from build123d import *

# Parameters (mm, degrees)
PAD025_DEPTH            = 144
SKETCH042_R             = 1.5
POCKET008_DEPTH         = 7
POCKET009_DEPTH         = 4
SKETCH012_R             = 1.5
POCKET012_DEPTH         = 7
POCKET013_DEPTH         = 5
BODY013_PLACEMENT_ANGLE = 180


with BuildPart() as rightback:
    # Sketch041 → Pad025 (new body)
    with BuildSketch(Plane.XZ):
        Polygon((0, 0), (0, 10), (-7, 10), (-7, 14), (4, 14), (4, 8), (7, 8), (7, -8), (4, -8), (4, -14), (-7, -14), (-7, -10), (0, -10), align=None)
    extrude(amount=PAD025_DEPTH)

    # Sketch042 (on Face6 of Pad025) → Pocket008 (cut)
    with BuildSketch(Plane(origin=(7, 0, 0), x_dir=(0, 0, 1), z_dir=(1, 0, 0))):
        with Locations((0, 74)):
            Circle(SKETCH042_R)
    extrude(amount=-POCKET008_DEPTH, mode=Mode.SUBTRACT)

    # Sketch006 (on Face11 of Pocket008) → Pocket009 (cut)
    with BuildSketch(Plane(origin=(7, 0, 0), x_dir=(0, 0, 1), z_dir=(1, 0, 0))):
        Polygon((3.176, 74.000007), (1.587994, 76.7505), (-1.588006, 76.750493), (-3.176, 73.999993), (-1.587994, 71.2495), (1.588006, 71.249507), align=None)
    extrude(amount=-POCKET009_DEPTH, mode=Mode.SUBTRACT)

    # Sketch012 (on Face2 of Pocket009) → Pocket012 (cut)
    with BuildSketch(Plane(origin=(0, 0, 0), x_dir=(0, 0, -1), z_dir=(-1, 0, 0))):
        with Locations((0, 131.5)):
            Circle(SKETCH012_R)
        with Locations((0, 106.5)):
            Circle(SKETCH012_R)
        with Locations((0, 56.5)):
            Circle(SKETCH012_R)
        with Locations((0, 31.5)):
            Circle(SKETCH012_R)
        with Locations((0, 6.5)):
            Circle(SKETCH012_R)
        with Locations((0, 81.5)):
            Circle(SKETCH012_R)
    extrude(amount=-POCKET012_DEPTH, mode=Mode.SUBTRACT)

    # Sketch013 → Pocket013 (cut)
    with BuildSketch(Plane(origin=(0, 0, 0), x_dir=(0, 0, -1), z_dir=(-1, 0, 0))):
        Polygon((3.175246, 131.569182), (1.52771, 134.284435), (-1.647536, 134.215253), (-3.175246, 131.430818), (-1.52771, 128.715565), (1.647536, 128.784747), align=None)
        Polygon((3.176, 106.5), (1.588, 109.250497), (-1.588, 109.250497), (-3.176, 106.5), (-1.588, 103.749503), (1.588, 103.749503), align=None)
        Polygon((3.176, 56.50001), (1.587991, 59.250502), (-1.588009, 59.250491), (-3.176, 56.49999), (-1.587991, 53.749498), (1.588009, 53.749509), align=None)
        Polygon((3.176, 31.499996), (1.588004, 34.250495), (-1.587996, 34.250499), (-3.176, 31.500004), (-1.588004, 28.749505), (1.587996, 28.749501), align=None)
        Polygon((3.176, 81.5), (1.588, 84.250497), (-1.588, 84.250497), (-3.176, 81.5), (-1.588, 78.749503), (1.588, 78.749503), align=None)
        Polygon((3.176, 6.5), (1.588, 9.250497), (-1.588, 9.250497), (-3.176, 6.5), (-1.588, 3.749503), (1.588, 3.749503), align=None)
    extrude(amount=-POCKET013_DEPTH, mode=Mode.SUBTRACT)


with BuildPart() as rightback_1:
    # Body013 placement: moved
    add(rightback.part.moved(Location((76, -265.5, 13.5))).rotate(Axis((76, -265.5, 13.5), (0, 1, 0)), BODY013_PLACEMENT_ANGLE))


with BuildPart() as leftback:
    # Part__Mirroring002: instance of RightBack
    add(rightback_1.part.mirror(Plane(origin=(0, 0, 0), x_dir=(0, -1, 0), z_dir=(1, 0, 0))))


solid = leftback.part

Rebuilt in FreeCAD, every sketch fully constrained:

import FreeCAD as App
import Part
import Sketcher
Q = App.Units.Quantity


def add_polygon(sketch, points):
    """Adds a closed chain of lines whose ends are joined by coincident constraints."""
    first, n = sketch.GeometryCount, len(points)
    for a, b in zip(points, points[1:] + points[:1]):
        sketch.addGeometry(Part.LineSegment(App.Vector(*a, 0), App.Vector(*b, 0)), False)
    for i in range(n):
        sketch.addConstraint(Sketcher.Constraint("Coincident", first + i, 2, first + (i + 1) % n, 1))

doc = App.newDocument("Part")
body = doc.addObject("PartDesign::Body", "Body")

# Sketch on XZ plane
sketch1 = body.newObject("Sketcher::SketchObject", "Sketch")
sketch1.AttachmentSupport = (doc.getObject("XZ_Plane"), [""])
sketch1.MapMode = "FlatFace"
add_polygon(sketch1, [(0, 10), (0, -10), (-7, -10), (-7, -14), (4, -14), (4, -8), (7, -8), (7, 8), (4, 8), (4, 14), (-7, 14), (-7, 10)])  # lines 0-11
sketch1.addConstraint(Sketcher.Constraint("Vertical", 0))
sketch1.addConstraint(Sketcher.Constraint("Horizontal", 1))
sketch1.addConstraint(Sketcher.Constraint("Vertical", 2))
sketch1.addConstraint(Sketcher.Constraint("Horizontal", 3))
sketch1.addConstraint(Sketcher.Constraint("Vertical", 4))
sketch1.addConstraint(Sketcher.Constraint("Horizontal", 5))
sketch1.addConstraint(Sketcher.Constraint("Vertical", 6))
sketch1.addConstraint(Sketcher.Constraint("Horizontal", 7))
sketch1.addConstraint(Sketcher.Constraint("Vertical", 8))
sketch1.addConstraint(Sketcher.Constraint("Horizontal", 9))
sketch1.addConstraint(Sketcher.Constraint("Vertical", 10))
sketch1.addConstraint(Sketcher.Constraint("Horizontal", 11))
sketch1.addConstraint(Sketcher.Constraint("Symmetric", 0, 2, 11, 2, -1, 1))
sketch1.addConstraint(Sketcher.Constraint("Symmetric", 4, 2, 7, 2, -1))
sketch1.addConstraint(Sketcher.Constraint("Symmetric", 2, 2, 9, 2, -1))
sketch1.addConstraint(Sketcher.Constraint("DistanceX", 1, 2, 1, 1, 7.0))
sketch1.addConstraint(Sketcher.Constraint("DistanceX", 3, 1, 3, 2, 11.0))
sketch1.addConstraint(Sketcher.Constraint("DistanceX", 5, 1, 5, 2, 3.0))
sketch1.addConstraint(Sketcher.Constraint("DistanceY", 0, 2, 0, 1, 20.0))
sketch1.addConstraint(Sketcher.Constraint("DistanceY", 2, 2, 2, 1, 4.0))
sketch1.addConstraint(Sketcher.Constraint("DistanceY", 4, 1, 4, 2, 6.0))
pad1 = body.newObject("PartDesign::Pad", "Pad")
pad1.Profile = sketch1
pad1.Length = 144

# Sketch on YZ plane
sketch2 = body.newObject("Sketcher::SketchObject", "Sketch001")
sketch2.AttachmentSupport = (doc.getObject("YZ_Plane"), [""])
sketch2.MapMode = "FlatFace"
sketch2.AttachmentOffset = App.Placement(App.Vector(0, 0, 7), App.Rotation())
sketch2.addGeometry(Part.Circle(App.Vector(-74, 0, 0), App.Vector(0, 0, 1), 1.5), False)
sketch2.addConstraint(Sketcher.Constraint("PointOnObject", 0, 3, -1))
sketch2.addConstraint(Sketcher.Constraint("Diameter", 0, 3.0))
sketch2.addConstraint(Sketcher.Constraint("DistanceX", 0, 3, -1, 1, 74.0))
pocket1 = body.newObject("PartDesign::Pocket", "Pocket")
pocket1.Profile = sketch2
pocket1.Length = 7

# Sketch on YZ plane
sketch3 = body.newObject("Sketcher::SketchObject", "Sketch002")
sketch3.AttachmentSupport = (doc.getObject("YZ_Plane"), [""])
sketch3.MapMode = "FlatFace"
sketch3.AttachmentOffset = App.Placement(App.Vector(0, 0, 7), App.Rotation())
add_polygon(sketch3, [(-74.000007, 3.176), (-76.7505, 1.587994), (-76.750493, -1.588006), (-73.999993, -3.176), (-71.2495, -1.587994), (-71.249507, 1.588006)])  # lines 0-5
sketch3.addConstraint(Sketcher.Constraint("Parallel", 0, 3))
sketch3.addConstraint(Sketcher.Constraint("Parallel", 1, 4))
sketch3.addConstraint(Sketcher.Constraint("Parallel", 2, 5))
sketch3.addConstraint(Sketcher.Constraint("Equal", 0, 1))
sketch3.addConstraint(Sketcher.Constraint("Equal", 1, 2))
sketch3.addConstraint(Sketcher.Constraint("Equal", 2, 3))
sketch3.addConstraint(Sketcher.Constraint("Distance", 0, 3.176))
sketch3.addConstraint(Sketcher.Constraint("DistanceY", 2, 2, -1, 1, 3.176))
sketch3.addConstraint(Sketcher.Constraint("DistanceY", -1, 1, 5, 2, 3.176))
sketch3.addConstraint(Sketcher.Constraint("DistanceX", 0, 2, 3, 2, 5.501))
sketch3.addConstraint(Sketcher.Constraint("DistanceX", 0, 2, -1, 1, 76.7505))
sketch3.addConstraint(Sketcher.Constraint("DistanceX", 1, 2, 2, 2, 2.7505))
pocket2 = body.newObject("PartDesign::Pocket", "Pocket001")
pocket2.Profile = sketch3
pocket2.Length = 4

# Sketch on YZ plane
sketch4 = body.newObject("Sketcher::SketchObject", "Sketch003")
sketch4.AttachmentSupport = (doc.getObject("YZ_Plane"), [""])
sketch4.MapMode = "FlatFace"
sketch4.addGeometry(Part.Circle(App.Vector(-131.5, 0, 0), App.Vector(0, 0, 1), 1.5), False)
sketch4.addGeometry(Part.Circle(App.Vector(-106.5, 0, 0), App.Vector(0, 0, 1), 1.5), False)
sketch4.addGeometry(Part.Circle(App.Vector(-56.5, 0, 0), App.Vector(0, 0, 1), 1.5), False)
sketch4.addGeometry(Part.Circle(App.Vector(-31.5, 0, 0), App.Vector(0, 0, 1), 1.5), False)
sketch4.addGeometry(Part.Circle(App.Vector(-6.5, 0, 0), App.Vector(0, 0, 1), 1.5), False)
sketch4.addGeometry(Part.Circle(App.Vector(-81.5, 0, 0), App.Vector(0, 0, 1), 1.5), False)
sketch4.addConstraint(Sketcher.Constraint("Equal", 0, 1))
sketch4.addConstraint(Sketcher.Constraint("Equal", 1, 2))
sketch4.addConstraint(Sketcher.Constraint("Equal", 2, 3))
sketch4.addConstraint(Sketcher.Constraint("Equal", 3, 4))
sketch4.addConstraint(Sketcher.Constraint("Equal", 4, 5))
sketch4.addConstraint(Sketcher.Constraint("PointOnObject", 0, 3, -1))
sketch4.addConstraint(Sketcher.Constraint("PointOnObject", 1, 3, -1))
sketch4.addConstraint(Sketcher.Constraint("PointOnObject", 2, 3, -1))
sketch4.addConstraint(Sketcher.Constraint("PointOnObject", 3, 3, -1))
sketch4.addConstraint(Sketcher.Constraint("PointOnObject", 4, 3, -1))
sketch4.addConstraint(Sketcher.Constraint("PointOnObject", 5, 3, -1))
sketch4.addConstraint(Sketcher.Constraint("Diameter", 0, 3.0))
sketch4.addConstraint(Sketcher.Constraint("DistanceX", 0, 3, 1, 3, 25.0))
sketch4.addConstraint(Sketcher.Constraint("DistanceX", 1, 3, 2, 3, 50.0))
sketch4.addConstraint(Sketcher.Constraint("DistanceX", 2, 3, 3, 3, 25.0))
sketch4.addConstraint(Sketcher.Constraint("DistanceX", 3, 3, 4, 3, 25.0))
sketch4.addConstraint(Sketcher.Constraint("DistanceX", 1, 3, 5, 3, 25.0))
sketch4.addConstraint(Sketcher.Constraint("DistanceX", 0, 3, -1, 1, 131.5))
pocket3 = body.newObject("PartDesign::Pocket", "Pocket002")
pocket3.Profile = sketch4
pocket3.Length = 7
pocket3.Reversed = True

# Sketch on YZ plane
sketch5 = body.newObject("Sketcher::SketchObject", "Sketch004")
sketch5.AttachmentSupport = (doc.getObject("YZ_Plane"), [""])
sketch5.MapMode = "FlatFace"
add_polygon(sketch5, [(-131.569182, -3.175246), (-134.284435, -1.52771), (-134.215253, 1.647536), (-131.430818, 3.175246), (-128.715565, 1.52771), (-128.784747, -1.647536)])  # lines 0-5
add_polygon(sketch5, [(-106.5, -3.176), (-109.250497, -1.588), (-109.250497, 1.588), (-106.5, 3.176), (-103.749503, 1.588), (-103.749503, -1.588)])  # lines 6-11
add_polygon(sketch5, [(-56.50001, -3.176), (-59.250502, -1.587991), (-59.250491, 1.588009), (-56.49999, 3.176), (-53.749498, 1.587991), (-53.749509, -1.588009)])  # lines 12-17
add_polygon(sketch5, [(-31.499996, -3.176), (-34.250495, -1.588004), (-34.250499, 1.587996), (-31.500004, 3.176), (-28.749505, 1.588004), (-28.749501, -1.587996)])  # lines 18-23
add_polygon(sketch5, [(-81.5, -3.176), (-84.250497, -1.588), (-84.250497, 1.588), (-81.5, 3.176), (-78.749503, 1.588), (-78.749503, -1.588)])  # lines 24-29
add_polygon(sketch5, [(-6.5, -3.176), (-9.250497, -1.588), (-9.250497, 1.588), (-6.5, 3.176), (-3.749503, 1.588), (-3.749503, -1.588)])  # lines 30-35
sketch5.addConstraint(Sketcher.Constraint("Vertical", 7))
sketch5.addConstraint(Sketcher.Constraint("Vertical", 10))
sketch5.addConstraint(Sketcher.Constraint("Vertical", 25))
sketch5.addConstraint(Sketcher.Constraint("Vertical", 28))
sketch5.addConstraint(Sketcher.Constraint("Vertical", 31))
sketch5.addConstraint(Sketcher.Constraint("Vertical", 34))
sketch5.addConstraint(Sketcher.Constraint("Symmetric", 8, 2, 11, 2, -1))
sketch5.addConstraint(Sketcher.Constraint("Symmetric", 18, 2, 19, 2, -1))
sketch5.addConstraint(Sketcher.Constraint("Symmetric", 21, 2, 22, 2, -1))
sketch5.addConstraint(Sketcher.Constraint("Symmetric", 20, 2, 23, 2, -1))
sketch5.addConstraint(Sketcher.Constraint("Symmetric", 26, 2, 29, 2, -1))
sketch5.addConstraint(Sketcher.Constraint("Symmetric", 32, 2, 35, 2, -1))
sketch5.addConstraint(Sketcher.Constraint("Parallel", 0, 3))
sketch5.addConstraint(Sketcher.Constraint("Parallel", 1, 4))
sketch5.addConstraint(Sketcher.Constraint("Parallel", 2, 5))
sketch5.addConstraint(Sketcher.Constraint("Parallel", 6, 9))
sketch5.addConstraint(Sketcher.Constraint("Parallel", 8, 11))
sketch5.addConstraint(Sketcher.Constraint("Parallel", 12, 15))
sketch5.addConstraint(Sketcher.Constraint("Parallel", 13, 16))
sketch5.addConstraint(Sketcher.Constraint("Parallel", 14, 17))
sketch5.addConstraint(Sketcher.Constraint("Parallel", 9, 18))
sketch5.addConstraint(Sketcher.Constraint("Parallel", 11, 20))
sketch5.addConstraint(Sketcher.Constraint("Parallel", 18, 21))
sketch5.addConstraint(Sketcher.Constraint("Parallel", 21, 24))
sketch5.addConstraint(Sketcher.Constraint("Parallel", 23, 26))
sketch5.addConstraint(Sketcher.Constraint("Parallel", 24, 27))
sketch5.addConstraint(Sketcher.Constraint("Parallel", 26, 29))
sketch5.addConstraint(Sketcher.Constraint("Parallel", 27, 30))
sketch5.addConstraint(Sketcher.Constraint("Parallel", 29, 32))
sketch5.addConstraint(Sketcher.Constraint("Parallel", 30, 33))
sketch5.addConstraint(Sketcher.Constraint("Parallel", 32, 35))
sketch5.addConstraint(Sketcher.Constraint("Horizontal", 7, 2, 9, 2))
sketch5.addConstraint(Sketcher.Constraint("Horizontal", 8, 2, 14, 2))
sketch5.addConstraint(Sketcher.Constraint("Horizontal", 11, 2, 17, 2))
sketch5.addConstraint(Sketcher.Constraint("Horizontal", 14, 2, 20, 2))
sketch5.addConstraint(Sketcher.Constraint("Horizontal", 10, 2, 24, 2))
sketch5.addConstraint(Sketcher.Constraint("Horizontal", 20, 2, 26, 2))
sketch5.addConstraint(Sketcher.Constraint("Horizontal", 25, 2, 27, 2))
sketch5.addConstraint(Sketcher.Constraint("Horizontal", 28, 2, 30, 2))
sketch5.addConstraint(Sketcher.Constraint("Horizontal", 26, 2, 32, 2))
sketch5.addConstraint(Sketcher.Constraint("Horizontal", 31, 2, 33, 2))
sketch5.addConstraint(Sketcher.Constraint("Equal", 0, 1))
sketch5.addConstraint(Sketcher.Constraint("Equal", 1, 2))
sketch5.addConstraint(Sketcher.Constraint("Equal", 2, 3))
sketch5.addConstraint(Sketcher.Constraint("Equal", 5, 6))
sketch5.addConstraint(Sketcher.Constraint("Equal", 11, 12))
sketch5.addConstraint(Sketcher.Constraint("Equal", 12, 13))
sketch5.addConstraint(Sketcher.Constraint("Equal", 13, 14))
sketch5.addConstraint(Sketcher.Constraint("Equal", 14, 15))
sketch5.addConstraint(Sketcher.Constraint("Equal", 17, 18))
sketch5.addConstraint(Sketcher.Constraint("Equal", 18, 19))
sketch5.addConstraint(Sketcher.Constraint("Equal", 20, 21))
sketch5.addConstraint(Sketcher.Constraint("Angle", 6, Q("150.000003 deg")))
sketch5.addConstraint(Sketcher.Constraint("DistanceX", 18, 2, 30, 2, 24.999998))
sketch5.addConstraint(Sketcher.Constraint("DistanceX", 8, 2, -1, 1, 106.5))
sketch5.addConstraint(Sketcher.Constraint("DistanceX", 26, 2, -1, 1, 81.5))
sketch5.addConstraint(Sketcher.Constraint("DistanceX", 32, 2, -1, 1, 6.5))
sketch5.addConstraint(Sketcher.Constraint("DistanceY", 7, 1, 7, 2, 3.176))
sketch5.addConstraint(Sketcher.Constraint("DistanceX", 10, 2, 12, 2, 44.499001))
sketch5.addConstraint(Sketcher.Constraint("DistanceX", 15, 2, 19, 2, 19.498999))
sketch5.addConstraint(Sketcher.Constraint("DistanceX", 13, 2, 14, 2, 2.750501))
sketch5.addConstraint(Sketcher.Constraint("DistanceY", 0, 2, -1, 1, 1.52771))
sketch5.addConstraint(Sketcher.Constraint("DistanceY", -1, 1, 3, 2, 1.52771))
sketch5.addConstraint(Sketcher.Constraint("DistanceY", 1, 2, 2, 2, 1.52771))
sketch5.addConstraint(Sketcher.Constraint("DistanceX", 0, 2, 3, 2, 5.56887))
sketch5.addConstraint(Sketcher.Constraint("DistanceX", 4, 2, 6, 2, 19.53425))
pocket4 = body.newObject("PartDesign::Pocket", "Pocket003")
pocket4.Profile = sketch5
pocket4.Length = 5
pocket4.Reversed = True
body2 = doc.addObject("PartDesign::Body", "Body001")
doc.recompute()

body.Placement = App.Placement(App.Vector(76, -265.5, 13.5), App.Rotation(App.Vector(0, 1, 0), 180))
boolean = body2.newObject("PartDesign::Boolean", "Boolean")
boolean.Type = "Fuse"
boolean.addObjects([body])
body3 = doc.addObject("PartDesign::Body", "Body002")
doc.recompute()

mirroring = doc.addObject("Part::Mirroring", "Mirroring")
mirroring.Source = body2
mirroring.Base = App.Vector(0, 0, 0)
mirroring.Normal = App.Vector(1, 0, 0)
body3.BaseFeature = mirroring
doc.recompute()
body2.Visibility = False
mirroring.Visibility = False

doc.recompute()
